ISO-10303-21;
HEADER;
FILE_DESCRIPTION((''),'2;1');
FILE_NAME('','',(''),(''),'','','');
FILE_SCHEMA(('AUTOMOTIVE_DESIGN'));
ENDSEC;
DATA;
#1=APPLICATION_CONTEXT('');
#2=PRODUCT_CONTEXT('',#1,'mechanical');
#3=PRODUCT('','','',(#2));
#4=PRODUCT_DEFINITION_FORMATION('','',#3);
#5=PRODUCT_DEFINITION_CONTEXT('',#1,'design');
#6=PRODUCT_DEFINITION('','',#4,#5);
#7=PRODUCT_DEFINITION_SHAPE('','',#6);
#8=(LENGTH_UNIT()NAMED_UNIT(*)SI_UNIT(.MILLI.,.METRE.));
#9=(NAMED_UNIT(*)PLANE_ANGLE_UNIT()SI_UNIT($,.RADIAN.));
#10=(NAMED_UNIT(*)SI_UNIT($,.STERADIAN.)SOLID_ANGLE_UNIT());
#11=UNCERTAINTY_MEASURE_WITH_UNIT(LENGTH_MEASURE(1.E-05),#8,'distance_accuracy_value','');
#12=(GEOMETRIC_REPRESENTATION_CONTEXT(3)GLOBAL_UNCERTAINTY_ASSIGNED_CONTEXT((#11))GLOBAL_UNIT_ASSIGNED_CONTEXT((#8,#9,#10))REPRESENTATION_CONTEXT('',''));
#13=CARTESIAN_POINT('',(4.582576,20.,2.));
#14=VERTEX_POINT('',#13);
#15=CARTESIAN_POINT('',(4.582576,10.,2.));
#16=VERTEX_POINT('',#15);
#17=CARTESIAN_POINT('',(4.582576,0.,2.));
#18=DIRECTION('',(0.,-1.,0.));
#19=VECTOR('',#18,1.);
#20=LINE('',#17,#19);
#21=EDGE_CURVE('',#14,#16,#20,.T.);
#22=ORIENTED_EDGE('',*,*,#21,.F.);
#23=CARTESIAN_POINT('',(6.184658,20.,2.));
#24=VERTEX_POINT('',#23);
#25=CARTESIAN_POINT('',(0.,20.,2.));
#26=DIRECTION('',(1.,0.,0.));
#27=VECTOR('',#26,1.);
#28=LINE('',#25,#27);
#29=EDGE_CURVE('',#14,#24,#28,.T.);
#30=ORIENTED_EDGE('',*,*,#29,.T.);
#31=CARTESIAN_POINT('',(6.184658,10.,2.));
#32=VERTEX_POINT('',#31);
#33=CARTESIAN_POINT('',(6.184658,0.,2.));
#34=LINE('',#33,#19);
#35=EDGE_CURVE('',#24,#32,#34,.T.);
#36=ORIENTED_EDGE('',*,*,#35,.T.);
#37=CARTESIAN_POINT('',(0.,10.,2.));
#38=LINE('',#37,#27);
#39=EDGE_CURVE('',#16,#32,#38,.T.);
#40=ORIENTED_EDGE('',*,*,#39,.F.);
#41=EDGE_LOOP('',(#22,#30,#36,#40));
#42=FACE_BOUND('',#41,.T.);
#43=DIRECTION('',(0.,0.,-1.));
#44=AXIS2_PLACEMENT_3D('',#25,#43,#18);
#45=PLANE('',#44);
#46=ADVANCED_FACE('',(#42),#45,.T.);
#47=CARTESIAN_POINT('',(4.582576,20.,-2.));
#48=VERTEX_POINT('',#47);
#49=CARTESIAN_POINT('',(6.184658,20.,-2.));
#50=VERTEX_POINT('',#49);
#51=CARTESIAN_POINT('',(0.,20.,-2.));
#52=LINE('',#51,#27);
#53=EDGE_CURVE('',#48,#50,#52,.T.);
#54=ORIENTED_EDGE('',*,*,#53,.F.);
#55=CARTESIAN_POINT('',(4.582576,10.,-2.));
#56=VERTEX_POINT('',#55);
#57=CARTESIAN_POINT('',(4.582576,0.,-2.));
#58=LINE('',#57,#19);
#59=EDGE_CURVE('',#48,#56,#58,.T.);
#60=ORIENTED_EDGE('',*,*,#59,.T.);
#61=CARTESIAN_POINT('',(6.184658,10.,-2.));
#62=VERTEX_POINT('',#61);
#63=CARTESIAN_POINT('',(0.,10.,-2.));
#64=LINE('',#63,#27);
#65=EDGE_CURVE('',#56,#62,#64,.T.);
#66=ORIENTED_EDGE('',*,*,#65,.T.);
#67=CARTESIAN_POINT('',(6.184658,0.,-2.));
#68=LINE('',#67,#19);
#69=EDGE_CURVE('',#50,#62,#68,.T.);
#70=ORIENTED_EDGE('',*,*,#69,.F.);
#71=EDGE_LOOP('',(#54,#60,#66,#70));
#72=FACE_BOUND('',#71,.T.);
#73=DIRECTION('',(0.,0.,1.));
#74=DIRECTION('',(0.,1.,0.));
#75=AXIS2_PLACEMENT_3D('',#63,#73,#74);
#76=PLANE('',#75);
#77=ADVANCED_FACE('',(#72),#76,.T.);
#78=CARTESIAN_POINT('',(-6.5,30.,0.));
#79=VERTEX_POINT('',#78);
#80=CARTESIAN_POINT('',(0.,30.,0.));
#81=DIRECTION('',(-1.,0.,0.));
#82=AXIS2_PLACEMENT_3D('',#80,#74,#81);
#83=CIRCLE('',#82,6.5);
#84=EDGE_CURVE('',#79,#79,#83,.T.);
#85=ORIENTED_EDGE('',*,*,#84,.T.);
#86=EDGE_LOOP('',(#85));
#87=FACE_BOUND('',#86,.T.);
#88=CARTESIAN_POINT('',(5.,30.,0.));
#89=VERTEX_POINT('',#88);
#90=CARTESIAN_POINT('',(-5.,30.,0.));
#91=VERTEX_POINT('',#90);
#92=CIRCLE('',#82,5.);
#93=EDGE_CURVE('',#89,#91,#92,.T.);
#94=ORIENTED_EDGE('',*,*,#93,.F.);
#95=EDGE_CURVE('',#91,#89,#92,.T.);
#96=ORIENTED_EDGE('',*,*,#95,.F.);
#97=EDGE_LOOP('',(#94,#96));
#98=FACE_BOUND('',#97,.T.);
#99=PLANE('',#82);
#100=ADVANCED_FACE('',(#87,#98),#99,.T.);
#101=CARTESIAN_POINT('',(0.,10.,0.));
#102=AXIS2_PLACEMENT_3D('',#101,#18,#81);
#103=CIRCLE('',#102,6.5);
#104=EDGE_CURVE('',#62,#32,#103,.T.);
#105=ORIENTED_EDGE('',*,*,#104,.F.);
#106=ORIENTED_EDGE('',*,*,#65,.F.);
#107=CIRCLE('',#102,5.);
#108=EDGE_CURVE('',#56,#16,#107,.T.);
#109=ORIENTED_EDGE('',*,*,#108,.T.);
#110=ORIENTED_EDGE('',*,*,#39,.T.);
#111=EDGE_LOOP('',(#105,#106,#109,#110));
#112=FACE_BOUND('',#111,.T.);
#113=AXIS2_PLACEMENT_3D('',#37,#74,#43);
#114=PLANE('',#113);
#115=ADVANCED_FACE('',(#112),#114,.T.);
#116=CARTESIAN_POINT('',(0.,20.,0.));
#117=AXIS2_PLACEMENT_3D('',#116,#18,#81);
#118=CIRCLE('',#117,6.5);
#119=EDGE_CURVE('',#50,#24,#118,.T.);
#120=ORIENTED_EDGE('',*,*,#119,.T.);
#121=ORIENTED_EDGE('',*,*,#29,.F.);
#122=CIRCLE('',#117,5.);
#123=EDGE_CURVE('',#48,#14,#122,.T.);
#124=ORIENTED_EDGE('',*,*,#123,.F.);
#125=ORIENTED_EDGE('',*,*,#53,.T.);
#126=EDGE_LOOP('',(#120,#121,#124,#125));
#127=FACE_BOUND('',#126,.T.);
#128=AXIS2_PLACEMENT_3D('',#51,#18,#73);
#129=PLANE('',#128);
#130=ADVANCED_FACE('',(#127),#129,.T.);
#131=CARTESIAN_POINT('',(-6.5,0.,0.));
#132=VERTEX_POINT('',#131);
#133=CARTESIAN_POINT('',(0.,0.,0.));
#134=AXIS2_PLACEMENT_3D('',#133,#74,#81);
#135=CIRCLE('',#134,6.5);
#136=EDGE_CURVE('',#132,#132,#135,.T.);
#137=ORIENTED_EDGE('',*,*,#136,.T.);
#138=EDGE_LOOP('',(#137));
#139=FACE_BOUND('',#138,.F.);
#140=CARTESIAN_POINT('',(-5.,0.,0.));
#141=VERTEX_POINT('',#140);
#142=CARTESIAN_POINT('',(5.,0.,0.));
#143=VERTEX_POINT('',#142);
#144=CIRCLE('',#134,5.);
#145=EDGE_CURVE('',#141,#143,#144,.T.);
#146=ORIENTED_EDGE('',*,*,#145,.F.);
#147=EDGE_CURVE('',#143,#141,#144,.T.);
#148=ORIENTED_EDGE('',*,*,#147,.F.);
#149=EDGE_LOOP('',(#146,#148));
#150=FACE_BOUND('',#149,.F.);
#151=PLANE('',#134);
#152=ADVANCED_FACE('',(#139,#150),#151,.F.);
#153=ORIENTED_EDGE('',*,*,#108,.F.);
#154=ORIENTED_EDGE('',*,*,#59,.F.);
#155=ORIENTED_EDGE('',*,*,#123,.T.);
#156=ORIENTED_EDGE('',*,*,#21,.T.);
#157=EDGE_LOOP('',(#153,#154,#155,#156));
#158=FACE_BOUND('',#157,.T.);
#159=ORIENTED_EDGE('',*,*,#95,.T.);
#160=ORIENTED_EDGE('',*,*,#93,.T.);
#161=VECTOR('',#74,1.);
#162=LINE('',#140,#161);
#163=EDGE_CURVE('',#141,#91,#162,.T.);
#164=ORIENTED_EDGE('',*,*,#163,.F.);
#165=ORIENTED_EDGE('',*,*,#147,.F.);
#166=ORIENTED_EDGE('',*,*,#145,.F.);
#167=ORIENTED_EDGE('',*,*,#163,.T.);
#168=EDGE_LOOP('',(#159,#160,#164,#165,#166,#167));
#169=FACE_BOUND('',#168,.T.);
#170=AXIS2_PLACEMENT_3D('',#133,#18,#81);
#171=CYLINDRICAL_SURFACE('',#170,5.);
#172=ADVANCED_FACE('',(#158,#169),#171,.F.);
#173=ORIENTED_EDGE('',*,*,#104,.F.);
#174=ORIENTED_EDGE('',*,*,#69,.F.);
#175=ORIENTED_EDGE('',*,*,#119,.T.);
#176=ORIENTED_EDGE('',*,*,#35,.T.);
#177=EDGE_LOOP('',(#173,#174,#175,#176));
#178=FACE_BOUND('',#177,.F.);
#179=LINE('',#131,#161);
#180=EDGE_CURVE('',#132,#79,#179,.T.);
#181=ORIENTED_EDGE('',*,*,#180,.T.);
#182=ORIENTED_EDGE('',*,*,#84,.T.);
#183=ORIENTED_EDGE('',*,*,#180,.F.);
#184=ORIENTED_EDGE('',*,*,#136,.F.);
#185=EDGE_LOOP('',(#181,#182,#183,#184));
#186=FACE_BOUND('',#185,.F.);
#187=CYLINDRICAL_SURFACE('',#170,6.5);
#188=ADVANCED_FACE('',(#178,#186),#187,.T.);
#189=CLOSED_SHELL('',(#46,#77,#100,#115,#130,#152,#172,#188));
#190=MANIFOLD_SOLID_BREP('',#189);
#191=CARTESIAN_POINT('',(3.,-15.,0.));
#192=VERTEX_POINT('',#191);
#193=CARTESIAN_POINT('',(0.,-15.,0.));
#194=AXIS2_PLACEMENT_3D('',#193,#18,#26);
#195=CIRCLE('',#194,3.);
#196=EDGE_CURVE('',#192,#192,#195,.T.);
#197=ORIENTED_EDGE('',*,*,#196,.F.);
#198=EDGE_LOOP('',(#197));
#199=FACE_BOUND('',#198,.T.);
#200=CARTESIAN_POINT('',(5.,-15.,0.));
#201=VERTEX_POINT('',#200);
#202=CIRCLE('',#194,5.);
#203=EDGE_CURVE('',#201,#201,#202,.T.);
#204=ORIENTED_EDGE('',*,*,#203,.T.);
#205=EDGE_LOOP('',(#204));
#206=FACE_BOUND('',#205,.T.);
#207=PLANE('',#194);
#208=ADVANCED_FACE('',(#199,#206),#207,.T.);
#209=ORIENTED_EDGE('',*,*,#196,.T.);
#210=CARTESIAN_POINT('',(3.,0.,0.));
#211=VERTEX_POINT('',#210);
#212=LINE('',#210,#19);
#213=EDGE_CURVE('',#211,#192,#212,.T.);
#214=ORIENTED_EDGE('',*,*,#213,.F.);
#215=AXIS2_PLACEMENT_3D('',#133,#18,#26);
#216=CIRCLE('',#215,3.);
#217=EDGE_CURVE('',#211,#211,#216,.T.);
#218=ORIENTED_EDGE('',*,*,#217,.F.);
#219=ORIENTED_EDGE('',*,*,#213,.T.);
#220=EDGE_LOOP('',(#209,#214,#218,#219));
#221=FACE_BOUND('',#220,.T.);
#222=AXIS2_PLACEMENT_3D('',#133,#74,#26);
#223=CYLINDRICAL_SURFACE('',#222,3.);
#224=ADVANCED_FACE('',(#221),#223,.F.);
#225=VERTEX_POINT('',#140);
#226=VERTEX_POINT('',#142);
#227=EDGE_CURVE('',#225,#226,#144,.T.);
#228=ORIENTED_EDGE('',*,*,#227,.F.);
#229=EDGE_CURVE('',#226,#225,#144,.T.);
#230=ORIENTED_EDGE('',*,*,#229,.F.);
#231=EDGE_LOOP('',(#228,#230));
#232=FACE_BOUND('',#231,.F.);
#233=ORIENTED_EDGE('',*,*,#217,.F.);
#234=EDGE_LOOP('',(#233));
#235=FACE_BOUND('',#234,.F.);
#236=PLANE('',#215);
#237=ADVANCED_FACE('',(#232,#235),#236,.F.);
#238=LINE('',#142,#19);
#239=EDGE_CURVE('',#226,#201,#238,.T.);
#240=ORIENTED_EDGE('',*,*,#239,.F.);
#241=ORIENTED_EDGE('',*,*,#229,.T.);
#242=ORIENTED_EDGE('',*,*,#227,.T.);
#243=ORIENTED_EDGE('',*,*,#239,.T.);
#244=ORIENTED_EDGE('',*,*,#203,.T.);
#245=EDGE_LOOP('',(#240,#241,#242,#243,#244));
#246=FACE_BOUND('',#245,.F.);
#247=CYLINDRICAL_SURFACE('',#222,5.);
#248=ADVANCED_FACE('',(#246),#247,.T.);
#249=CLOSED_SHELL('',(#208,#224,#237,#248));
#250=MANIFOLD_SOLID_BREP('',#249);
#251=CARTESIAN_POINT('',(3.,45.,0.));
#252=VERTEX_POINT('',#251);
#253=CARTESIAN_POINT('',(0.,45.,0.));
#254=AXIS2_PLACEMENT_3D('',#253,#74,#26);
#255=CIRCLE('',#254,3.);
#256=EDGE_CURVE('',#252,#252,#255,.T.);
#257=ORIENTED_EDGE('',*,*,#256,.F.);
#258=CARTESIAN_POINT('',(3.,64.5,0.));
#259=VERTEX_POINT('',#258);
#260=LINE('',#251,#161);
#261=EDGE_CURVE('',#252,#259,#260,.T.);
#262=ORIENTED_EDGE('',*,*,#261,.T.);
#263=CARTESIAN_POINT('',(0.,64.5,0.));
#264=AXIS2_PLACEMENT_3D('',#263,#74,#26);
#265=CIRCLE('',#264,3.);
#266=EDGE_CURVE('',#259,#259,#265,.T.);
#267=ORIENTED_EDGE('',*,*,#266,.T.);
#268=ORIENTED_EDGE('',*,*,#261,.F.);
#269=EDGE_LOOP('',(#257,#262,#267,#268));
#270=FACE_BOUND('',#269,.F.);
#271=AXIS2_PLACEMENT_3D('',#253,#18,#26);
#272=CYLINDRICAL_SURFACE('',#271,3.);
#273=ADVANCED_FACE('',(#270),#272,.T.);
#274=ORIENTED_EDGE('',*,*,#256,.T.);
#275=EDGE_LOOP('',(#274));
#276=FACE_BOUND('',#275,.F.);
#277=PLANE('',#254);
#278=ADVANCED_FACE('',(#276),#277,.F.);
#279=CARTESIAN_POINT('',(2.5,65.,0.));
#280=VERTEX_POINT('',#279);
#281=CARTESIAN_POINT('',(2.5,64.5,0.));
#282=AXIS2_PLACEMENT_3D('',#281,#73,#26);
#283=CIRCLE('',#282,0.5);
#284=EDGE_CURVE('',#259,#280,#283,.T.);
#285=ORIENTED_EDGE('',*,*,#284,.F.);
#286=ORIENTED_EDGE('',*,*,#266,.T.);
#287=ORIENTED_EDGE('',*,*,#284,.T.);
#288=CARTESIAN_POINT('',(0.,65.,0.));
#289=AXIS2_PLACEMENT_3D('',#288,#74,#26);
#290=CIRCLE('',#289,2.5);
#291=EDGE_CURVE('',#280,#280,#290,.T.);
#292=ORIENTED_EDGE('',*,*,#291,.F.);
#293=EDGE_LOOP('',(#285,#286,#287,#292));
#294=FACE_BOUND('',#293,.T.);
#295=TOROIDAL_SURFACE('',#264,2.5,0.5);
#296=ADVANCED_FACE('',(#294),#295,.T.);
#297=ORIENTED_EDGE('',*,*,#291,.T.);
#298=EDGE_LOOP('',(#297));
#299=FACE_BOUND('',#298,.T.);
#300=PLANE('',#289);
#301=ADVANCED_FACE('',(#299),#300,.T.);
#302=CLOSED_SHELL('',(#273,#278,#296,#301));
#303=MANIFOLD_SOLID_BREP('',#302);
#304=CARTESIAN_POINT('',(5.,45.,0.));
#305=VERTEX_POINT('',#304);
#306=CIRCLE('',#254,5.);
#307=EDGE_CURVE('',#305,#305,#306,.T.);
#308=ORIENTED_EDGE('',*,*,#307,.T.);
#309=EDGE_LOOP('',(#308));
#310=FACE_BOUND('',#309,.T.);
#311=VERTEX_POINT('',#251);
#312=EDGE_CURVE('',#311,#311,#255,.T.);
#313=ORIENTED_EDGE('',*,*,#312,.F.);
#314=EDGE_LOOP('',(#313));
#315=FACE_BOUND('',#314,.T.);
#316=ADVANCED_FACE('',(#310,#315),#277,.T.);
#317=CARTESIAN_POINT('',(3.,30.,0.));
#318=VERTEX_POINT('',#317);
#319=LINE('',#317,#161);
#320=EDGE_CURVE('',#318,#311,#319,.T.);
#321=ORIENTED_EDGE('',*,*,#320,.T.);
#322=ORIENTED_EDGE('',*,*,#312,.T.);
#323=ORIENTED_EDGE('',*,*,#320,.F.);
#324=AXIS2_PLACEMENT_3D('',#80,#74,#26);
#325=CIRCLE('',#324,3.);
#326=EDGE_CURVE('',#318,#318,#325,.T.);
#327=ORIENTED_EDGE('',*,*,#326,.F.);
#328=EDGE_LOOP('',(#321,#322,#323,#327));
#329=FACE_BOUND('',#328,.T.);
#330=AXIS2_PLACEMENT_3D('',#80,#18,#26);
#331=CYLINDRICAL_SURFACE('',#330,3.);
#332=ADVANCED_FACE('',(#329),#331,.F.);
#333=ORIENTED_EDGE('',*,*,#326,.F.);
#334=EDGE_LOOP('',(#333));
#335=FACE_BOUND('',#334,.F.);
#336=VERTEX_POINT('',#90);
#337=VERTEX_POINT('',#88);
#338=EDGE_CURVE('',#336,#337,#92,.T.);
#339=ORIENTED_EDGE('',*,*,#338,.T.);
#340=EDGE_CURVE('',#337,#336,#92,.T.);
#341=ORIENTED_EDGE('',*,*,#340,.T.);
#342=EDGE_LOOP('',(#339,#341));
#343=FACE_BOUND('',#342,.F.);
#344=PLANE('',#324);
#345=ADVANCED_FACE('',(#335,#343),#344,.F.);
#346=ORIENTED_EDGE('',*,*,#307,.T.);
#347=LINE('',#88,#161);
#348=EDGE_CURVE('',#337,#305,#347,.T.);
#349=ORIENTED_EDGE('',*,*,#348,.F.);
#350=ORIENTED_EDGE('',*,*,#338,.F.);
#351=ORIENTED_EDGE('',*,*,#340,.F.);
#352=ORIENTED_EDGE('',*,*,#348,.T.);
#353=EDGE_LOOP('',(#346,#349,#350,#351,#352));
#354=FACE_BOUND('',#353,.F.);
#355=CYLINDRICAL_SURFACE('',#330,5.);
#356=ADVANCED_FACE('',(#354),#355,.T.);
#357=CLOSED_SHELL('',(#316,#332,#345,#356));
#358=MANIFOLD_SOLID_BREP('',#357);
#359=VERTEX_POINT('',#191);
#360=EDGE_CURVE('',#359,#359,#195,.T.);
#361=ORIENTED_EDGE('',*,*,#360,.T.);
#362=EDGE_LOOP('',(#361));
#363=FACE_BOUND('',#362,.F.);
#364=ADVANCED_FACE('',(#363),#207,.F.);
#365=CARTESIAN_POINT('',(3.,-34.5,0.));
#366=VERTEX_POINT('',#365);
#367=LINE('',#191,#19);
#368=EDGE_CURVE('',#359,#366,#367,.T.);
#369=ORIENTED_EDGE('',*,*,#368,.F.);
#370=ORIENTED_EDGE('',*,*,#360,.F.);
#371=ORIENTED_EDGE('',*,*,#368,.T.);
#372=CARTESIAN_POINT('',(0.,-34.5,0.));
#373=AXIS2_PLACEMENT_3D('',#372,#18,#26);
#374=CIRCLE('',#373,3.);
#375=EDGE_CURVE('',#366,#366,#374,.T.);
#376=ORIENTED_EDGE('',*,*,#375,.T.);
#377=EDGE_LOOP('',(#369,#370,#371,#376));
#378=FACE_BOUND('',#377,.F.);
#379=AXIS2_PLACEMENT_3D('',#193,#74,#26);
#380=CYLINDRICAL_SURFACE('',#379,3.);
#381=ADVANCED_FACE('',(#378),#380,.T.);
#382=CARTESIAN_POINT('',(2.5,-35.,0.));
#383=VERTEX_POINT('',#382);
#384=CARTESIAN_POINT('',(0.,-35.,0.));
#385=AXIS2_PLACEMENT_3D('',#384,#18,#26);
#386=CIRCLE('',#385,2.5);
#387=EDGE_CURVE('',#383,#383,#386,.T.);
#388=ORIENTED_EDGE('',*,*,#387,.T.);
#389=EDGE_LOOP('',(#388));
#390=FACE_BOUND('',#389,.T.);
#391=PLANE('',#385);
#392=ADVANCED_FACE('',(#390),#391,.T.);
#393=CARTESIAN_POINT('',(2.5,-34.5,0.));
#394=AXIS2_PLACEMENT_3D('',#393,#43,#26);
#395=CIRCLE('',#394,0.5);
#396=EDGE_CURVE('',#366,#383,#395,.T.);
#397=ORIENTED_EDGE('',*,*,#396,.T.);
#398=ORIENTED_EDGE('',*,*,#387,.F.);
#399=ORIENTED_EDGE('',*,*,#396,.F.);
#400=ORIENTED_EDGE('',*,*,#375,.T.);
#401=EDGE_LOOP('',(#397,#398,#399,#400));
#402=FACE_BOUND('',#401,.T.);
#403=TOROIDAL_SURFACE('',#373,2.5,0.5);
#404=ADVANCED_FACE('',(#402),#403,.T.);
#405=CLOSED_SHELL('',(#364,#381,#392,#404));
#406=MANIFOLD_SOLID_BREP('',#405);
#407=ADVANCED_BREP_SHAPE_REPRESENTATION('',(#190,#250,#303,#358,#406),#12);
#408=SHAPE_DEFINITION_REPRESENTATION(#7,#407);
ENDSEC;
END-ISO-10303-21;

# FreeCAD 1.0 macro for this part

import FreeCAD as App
import Part
import Sketcher
from FreeCAD import Vector
Q = App.Units.Quantity


def edges_at(feature, points):
    """Names of the edges that pass closest to the given points."""
    edges = feature.Shape.Edges
    near = lambda p: min(range(len(edges)), key=lambda i: edges[i].distToShape(Part.Vertex(*p))[0])
    return sorted({f"Edge{near(p) + 1}" for p in points})

doc = App.newDocument("Part")
body = doc.addObject("PartDesign::Body", "Body")
body.AllowCompound = True

# Sketch on XZ plane
sketch1 = body.newObject("Sketcher::SketchObject", "Sketch")
sketch1.AttachmentSupport = (doc.getObject("XZ_Plane"), [""])
sketch1.MapMode = "FlatFace"
sketch1.addGeometry([
    Part.Circle(Vector(0, 0, 0), Vector(0, 0, 1), 6),
    Part.Circle(Vector(0, 0, 0), Vector(0, 0, 1), 5),
], False)
sketch1.addConstraint([
    Sketcher.Constraint("Coincident", 0, 3, -1, 1),
    Sketcher.Constraint("Coincident", 1, 3, -1, 1),
    Sketcher.Constraint("Diameter", 0, Q("13 mm")),
    Sketcher.Constraint("Diameter", 1, Q("10 mm")),
])
pad1 = body.newObject("PartDesign::Pad", "Pad")
pad1.Profile = sketch1
pad1.Length = 30
pad1.Reversed = True

# Sketch on YZ plane
sketch2 = body.newObject("Sketcher::SketchObject", "Sketch001")
sketch2.AttachmentSupport = (doc.getObject("YZ_Plane"), [""])
sketch2.MapMode = "FlatFace"
sketch2.addGeometry([
    Part.LineSegment(Vector(10, 2, 0), Vector(10, -2, 0)),
    Part.LineSegment(Vector(10, -2, 0), Vector(20, -2, 0)),
    Part.LineSegment(Vector(20, -2, 0), Vector(20, 2, 0)),
    Part.LineSegment(Vector(20, 2, 0), Vector(10, 2, 0)),
], False)
sketch2.addConstraint([
    Sketcher.Constraint("Coincident", 0, 2, 1, 1),
    Sketcher.Constraint("Coincident", 1, 2, 2, 1),
    Sketcher.Constraint("Coincident", 2, 2, 3, 1),
    Sketcher.Constraint("Coincident", 3, 2, 0, 1),
    Sketcher.Constraint("Vertical", 0),
    Sketcher.Constraint("Horizontal", 1),
    Sketcher.Constraint("Vertical", 2),
    Sketcher.Constraint("Horizontal", 3),
    Sketcher.Constraint("DistanceX", 1, 1, 1, 2, Q("10 mm")),
    Sketcher.Constraint("DistanceY", 0, 2, 0, 1, Q("4 mm")),
    Sketcher.Constraint("DistanceX", -1, 1, 0, 2, Q("10 mm")),
    Sketcher.Constraint("DistanceY", 0, 2, -1, 1, Q("2 mm")),
])
pocket1 = body.newObject("PartDesign::Pocket", "Pocket")
pocket1.Profile = sketch2
pocket1.Length = 30
pocket1.Reversed = True

# Sketch on XZ plane
sketch3 = body.newObject("Sketcher::SketchObject", "Sketch002")
sketch3.AttachmentSupport = (doc.getObject("XZ_Plane"), [""])
sketch3.MapMode = "FlatFace"
sketch3.addGeometry([
    Part.Circle(Vector(0, 0, 0), Vector(0, 0, 1), 5),
    Part.Circle(Vector(0, 0, 0), Vector(0, 0, 1), 3),
], False)
sketch3.addConstraint([
    Sketcher.Constraint("Coincident", 0, 3, -1, 1),
    Sketcher.Constraint("Coincident", 1, 3, -1, 1),
    Sketcher.Constraint("Diameter", 1, Q("6 mm")),
    Sketcher.Constraint("Diameter", 0, Q("10 mm")),
])
pad2 = body.newObject("PartDesign::Pad", "Pad001")
pad2.Profile = sketch3
pad2.Length = 15

# Sketch on XZ plane
sketch4 = body.newObject("Sketcher::SketchObject", "Sketch003")
sketch4.AttachmentSupport = (doc.getObject("XZ_Plane"), [""])
sketch4.MapMode = "FlatFace"
sketch4.AttachmentOffset = App.Placement(Vector(0, 0, -30), App.Rotation())
sketch4.addGeometry([
    Part.Circle(Vector(0, 0, 0), Vector(0, 0, 1), 5),
    Part.Circle(Vector(0, 0, 0), Vector(0, 0, 1), 3),
], False)
sketch4.addConstraint([
    Sketcher.Constraint("Coincident", 0, 3, -1, 1),
    Sketcher.Constraint("Coincident", 1, 3, -1, 1),
    Sketcher.Constraint("Diameter", 0, Q("10 mm")),
    Sketcher.Constraint("Diameter", 1, Q("6 mm")),
])
pad3 = body.newObject("PartDesign::Pad", "Pad002")
pad3.Profile = sketch4
pad3.Length = 15
pad3.Reversed = True

# Sketch on XZ plane
sketch5 = body.newObject("Sketcher::SketchObject", "Sketch004")
sketch5.AttachmentSupport = (doc.getObject("XZ_Plane"), [""])
sketch5.MapMode = "FlatFace"
sketch5.AttachmentOffset = App.Placement(Vector(0, 0, 15), App.Rotation())
sketch5.addGeometry(Part.Circle(Vector(0, 0, 0), Vector(0, 0, 1), 3), False)
sketch5.addConstraint([
    Sketcher.Constraint("Coincident", 0, 3, -1, 1),
    Sketcher.Constraint("Diameter", 0, Q("6 mm")),
])
pad4 = body.newObject("PartDesign::Pad", "Pad003")
pad4.Profile = sketch5
pad4.Length = 20

# Sketch on XZ plane
sketch6 = body.newObject("Sketcher::SketchObject", "Sketch005")
sketch6.AttachmentSupport = (doc.getObject("XZ_Plane"), [""])
sketch6.MapMode = "FlatFace"
sketch6.AttachmentOffset = App.Placement(Vector(0, 0, -45), App.Rotation())
sketch6.addGeometry(Part.Circle(Vector(0, 0, 0), Vector(0, 0, 1), 3), False)
sketch6.addConstraint([
    Sketcher.Constraint("Coincident", 0, 3, -1, 1),
    Sketcher.Constraint("Diameter", 0, Q("6 mm")),
])
pad5 = body.newObject("PartDesign::Pad", "Pad004")
pad5.Profile = sketch6
pad5.Length = 20
pad5.Reversed = True
doc.recompute()

fillet = body.newObject("PartDesign::Fillet", "Fillet")
fillet.Base = (pad5, edges_at(pad5, [(-3, -35, 0), (-3, 65, 0)]))
fillet.Radius = 0.5

doc.recompute()
